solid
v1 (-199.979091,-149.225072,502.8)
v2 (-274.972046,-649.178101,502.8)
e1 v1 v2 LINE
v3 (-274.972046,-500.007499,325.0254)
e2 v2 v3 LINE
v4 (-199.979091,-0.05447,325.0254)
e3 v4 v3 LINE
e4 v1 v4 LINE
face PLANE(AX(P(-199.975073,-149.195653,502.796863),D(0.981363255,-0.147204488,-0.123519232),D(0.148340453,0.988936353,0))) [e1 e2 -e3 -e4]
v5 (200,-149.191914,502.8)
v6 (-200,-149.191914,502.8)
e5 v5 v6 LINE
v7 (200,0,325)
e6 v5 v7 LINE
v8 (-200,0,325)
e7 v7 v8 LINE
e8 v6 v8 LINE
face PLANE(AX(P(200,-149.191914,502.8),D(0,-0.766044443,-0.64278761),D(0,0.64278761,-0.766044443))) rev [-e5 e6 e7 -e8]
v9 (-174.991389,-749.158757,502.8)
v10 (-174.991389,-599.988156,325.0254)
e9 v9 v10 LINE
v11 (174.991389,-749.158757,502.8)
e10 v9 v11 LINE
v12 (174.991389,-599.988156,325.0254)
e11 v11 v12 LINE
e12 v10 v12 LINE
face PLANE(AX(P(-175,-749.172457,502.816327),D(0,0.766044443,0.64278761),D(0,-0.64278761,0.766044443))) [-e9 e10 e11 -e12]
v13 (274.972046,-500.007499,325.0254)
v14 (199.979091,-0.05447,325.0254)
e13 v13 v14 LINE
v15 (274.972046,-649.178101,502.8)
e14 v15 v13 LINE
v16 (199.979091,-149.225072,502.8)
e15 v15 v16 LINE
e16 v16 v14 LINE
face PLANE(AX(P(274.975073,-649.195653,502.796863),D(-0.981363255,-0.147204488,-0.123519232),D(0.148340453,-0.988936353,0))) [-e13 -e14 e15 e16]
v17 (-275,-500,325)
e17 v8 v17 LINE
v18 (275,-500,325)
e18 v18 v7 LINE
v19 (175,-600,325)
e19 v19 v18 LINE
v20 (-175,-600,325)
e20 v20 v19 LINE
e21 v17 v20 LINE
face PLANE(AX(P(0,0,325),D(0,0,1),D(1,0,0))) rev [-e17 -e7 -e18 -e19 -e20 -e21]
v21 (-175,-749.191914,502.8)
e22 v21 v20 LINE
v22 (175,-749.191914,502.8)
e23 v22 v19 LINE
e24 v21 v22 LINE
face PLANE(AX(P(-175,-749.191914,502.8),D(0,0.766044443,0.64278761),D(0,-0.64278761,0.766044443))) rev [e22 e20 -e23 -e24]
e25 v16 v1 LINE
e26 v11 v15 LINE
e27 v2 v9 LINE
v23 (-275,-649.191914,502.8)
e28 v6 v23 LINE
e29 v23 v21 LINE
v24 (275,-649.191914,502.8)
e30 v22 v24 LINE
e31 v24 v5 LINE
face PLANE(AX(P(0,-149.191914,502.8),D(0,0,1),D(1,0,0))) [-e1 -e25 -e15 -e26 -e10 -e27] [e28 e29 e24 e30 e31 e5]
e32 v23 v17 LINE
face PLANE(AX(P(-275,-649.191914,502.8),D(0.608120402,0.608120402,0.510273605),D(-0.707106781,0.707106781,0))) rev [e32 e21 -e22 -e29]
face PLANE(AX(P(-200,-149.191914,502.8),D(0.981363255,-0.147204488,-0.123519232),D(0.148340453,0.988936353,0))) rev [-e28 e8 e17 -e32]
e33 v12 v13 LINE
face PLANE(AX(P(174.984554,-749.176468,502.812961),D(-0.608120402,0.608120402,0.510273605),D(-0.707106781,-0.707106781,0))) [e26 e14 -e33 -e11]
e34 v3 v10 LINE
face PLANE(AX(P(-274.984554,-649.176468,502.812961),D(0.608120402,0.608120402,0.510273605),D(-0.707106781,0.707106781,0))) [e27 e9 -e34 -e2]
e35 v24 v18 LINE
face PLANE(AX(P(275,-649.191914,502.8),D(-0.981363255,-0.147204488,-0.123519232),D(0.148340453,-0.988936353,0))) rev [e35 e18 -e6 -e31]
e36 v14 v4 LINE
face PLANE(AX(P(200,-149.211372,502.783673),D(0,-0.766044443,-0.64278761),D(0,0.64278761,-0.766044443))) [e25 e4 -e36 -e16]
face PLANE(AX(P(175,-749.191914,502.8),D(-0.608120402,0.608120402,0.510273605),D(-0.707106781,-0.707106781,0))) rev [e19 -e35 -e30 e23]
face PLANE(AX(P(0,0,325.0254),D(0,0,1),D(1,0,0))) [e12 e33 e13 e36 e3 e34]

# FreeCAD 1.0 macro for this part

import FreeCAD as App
import Part
import Sketcher
from FreeCAD import Vector
Q = App.Units.Quantity


def faces_at(feature, points):
    """Names of the faces that lie closest to the given points."""
    faces = feature.Shape.Faces
    near = lambda p: min(range(len(faces)), key=lambda i: faces[i].distToShape(Part.Vertex(*p))[0])
    return sorted({f"Face{near(p) + 1}" for p in points})


def add_polygon(sketch, points):
    """Adds a closed chain of lines whose ends are joined by coincident constraints."""
    first, n = sketch.GeometryCount, len(points)
    for a, b in zip(points, points[1:] + points[:1]):
        sketch.addGeometry(Part.LineSegment(App.Vector(*a, 0), App.Vector(*b, 0)), False)
    for i in range(n):
        sketch.addConstraint(Sketcher.Constraint("Coincident", first + i, 2, first + (i + 1) % n, 1))

doc = App.newDocument("Part")
body = doc.addObject("PartDesign::Body", "Body")

# Sketch on XY plane
sketch1 = body.newObject("Sketcher::SketchObject", "Sketch")
sketch1.AttachmentSupport = (doc.getObject("XY_Plane"), [""])
sketch1.MapMode = "FlatFace"
sketch1.AttachmentOffset = App.Placement(Vector(0, 0, 325), App.Rotation())
add_polygon(sketch1, [(200, 0), (-200, 0), (-275, -500), (-175, -600), (175, -600), (275, -500)])  # lines 0-5
sketch1.addConstraint(Sketcher.Constraint("Horizontal", 0))
sketch1.addConstraint(Sketcher.Constraint("Horizontal", 3))
sketch1.addConstraint(Sketcher.Constraint("Symmetric", 0, 2, 5, 2, -1, 1))
sketch1.addConstraint(Sketcher.Constraint("Symmetric", 1, 2, 4, 2, -2))
sketch1.addConstraint(Sketcher.Constraint("Perpendicular", 2, 4))
sketch1.addConstraint(Sketcher.Constraint("Equal", 2, 4))
sketch1.addConstraint(Sketcher.Constraint("DistanceX", 0, 2, 0, 1, Q("400 mm")))
sketch1.addConstraint(Sketcher.Constraint("DistanceX", 3, 1, 3, 2, Q("350 mm")))
sketch1.addConstraint(Sketcher.Constraint("DistanceX", 1, 2, -1, 1, Q("275 mm")))
sketch1.addConstraint(Sketcher.Constraint("DistanceY", 1, 2, -1, 1, Q("500 mm")))

# Sketch on an angled plane
sketch2 = body.newObject("Sketcher::SketchObject", "Sketch001")
sketch2.Placement = App.Placement(Vector(0, 160.03126, 134.282171), App.Rotation(Vector(0, -0.64278761, 0.766044443), Vector(1, 0, 0), Vector(0, 0.766044443, 0.64278761), "ZXY"))
sketch2.addGeometry(Part.LineSegment(Vector(249, 0, 0), Vector(481, 0, 0)), False)
sketch2.addConstraint(Sketcher.Constraint("Horizontal", 0))
sketch2.addConstraint(Sketcher.Constraint("PointOnObject", 0, 1, -1))
sketch2.addConstraint(Sketcher.Constraint("DistanceX", 0, 1, 0, 2, Q("232.101416 mm")))
sketch2.addConstraint(Sketcher.Constraint("DistanceX", -1, 1, 0, 2, Q("481.06586 mm")))
doc.recompute()

additivepipe = body.newObject("PartDesign::AdditivePipe", "AdditivePipe")
additivepipe.Profile = sketch1
additivepipe.Spine = (sketch2, ["Edge1"])
doc.recompute()

thickness = body.newObject("PartDesign::Thickness", "Thickness")
thickness.Base = (additivepipe, faces_at(additivepipe, [(0, -449.192, 502.8)]))
thickness.Value = 0.0254
thickness.Reversed = True
thickness.Join = "Intersection"

doc.recompute()
